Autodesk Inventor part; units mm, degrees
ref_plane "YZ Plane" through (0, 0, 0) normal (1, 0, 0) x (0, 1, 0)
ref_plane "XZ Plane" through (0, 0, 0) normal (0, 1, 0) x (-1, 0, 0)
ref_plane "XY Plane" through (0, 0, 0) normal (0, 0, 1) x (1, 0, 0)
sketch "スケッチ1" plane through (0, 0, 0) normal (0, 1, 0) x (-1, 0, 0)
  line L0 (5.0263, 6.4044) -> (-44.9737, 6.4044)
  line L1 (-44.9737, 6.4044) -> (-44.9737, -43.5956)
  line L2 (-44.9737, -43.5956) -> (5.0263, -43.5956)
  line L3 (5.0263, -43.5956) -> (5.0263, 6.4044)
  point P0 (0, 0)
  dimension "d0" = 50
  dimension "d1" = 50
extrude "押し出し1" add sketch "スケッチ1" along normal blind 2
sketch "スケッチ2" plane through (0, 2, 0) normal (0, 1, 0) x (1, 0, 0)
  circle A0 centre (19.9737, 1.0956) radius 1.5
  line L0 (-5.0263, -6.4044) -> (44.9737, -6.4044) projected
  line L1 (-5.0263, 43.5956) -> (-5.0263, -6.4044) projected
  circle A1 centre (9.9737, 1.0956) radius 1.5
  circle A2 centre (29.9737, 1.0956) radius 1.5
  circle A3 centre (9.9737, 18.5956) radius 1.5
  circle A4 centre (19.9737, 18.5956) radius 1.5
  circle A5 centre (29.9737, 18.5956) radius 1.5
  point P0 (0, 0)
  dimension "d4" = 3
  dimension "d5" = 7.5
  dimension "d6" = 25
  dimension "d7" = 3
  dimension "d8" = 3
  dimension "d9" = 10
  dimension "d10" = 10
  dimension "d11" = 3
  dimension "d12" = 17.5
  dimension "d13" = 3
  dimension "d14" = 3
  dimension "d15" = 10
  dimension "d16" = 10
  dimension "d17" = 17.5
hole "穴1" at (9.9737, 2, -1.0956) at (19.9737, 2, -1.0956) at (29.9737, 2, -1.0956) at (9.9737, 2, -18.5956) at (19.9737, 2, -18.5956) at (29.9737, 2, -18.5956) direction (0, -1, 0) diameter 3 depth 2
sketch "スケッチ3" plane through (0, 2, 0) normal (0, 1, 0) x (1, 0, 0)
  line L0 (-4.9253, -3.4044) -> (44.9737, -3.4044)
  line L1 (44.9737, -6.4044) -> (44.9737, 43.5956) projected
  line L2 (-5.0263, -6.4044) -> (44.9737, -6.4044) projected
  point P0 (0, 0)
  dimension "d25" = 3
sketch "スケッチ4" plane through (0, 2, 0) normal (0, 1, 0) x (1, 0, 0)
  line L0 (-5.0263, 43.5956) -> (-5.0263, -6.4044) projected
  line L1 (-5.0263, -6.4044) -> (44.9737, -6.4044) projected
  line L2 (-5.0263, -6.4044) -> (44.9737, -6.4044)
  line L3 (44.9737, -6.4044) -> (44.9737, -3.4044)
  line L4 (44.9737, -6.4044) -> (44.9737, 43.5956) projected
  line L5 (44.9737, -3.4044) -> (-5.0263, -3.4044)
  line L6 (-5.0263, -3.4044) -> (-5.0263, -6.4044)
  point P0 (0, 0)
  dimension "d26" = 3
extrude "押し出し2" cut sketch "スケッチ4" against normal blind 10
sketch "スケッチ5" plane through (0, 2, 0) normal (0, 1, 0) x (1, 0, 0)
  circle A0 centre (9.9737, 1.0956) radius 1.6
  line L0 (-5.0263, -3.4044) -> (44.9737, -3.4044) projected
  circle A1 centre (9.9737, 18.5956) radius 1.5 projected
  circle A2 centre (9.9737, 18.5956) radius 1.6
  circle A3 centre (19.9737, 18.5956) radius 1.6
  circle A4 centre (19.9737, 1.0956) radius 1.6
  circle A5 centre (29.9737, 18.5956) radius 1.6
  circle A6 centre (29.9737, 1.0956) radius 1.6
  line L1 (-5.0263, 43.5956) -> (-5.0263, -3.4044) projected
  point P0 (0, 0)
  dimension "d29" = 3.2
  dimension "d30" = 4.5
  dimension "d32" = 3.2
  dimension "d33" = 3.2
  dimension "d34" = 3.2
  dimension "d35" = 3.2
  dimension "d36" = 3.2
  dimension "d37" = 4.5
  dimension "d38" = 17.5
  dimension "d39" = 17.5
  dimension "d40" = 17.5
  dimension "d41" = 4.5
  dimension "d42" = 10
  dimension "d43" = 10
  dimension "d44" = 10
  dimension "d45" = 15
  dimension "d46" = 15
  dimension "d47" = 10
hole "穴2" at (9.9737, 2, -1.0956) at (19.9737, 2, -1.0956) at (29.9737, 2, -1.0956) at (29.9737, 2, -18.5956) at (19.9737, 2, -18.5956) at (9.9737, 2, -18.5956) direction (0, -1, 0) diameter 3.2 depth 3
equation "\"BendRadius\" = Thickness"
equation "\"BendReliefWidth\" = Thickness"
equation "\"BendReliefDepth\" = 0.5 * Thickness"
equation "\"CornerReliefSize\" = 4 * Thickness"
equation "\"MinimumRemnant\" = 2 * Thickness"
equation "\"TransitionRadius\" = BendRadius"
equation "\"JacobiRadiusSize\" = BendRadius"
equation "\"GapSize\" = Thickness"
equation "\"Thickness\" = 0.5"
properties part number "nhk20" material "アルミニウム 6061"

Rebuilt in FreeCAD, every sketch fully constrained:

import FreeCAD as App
import Part
import Sketcher


def add_polygon(sketch, points):
    """Adds a closed chain of lines whose ends are joined by coincident constraints."""
    first, n = sketch.GeometryCount, len(points)
    for a, b in zip(points, points[1:] + points[:1]):
        sketch.addGeometry(Part.LineSegment(App.Vector(*a, 0), App.Vector(*b, 0)), False)
    for i in range(n):
        sketch.addConstraint(Sketcher.Constraint("Coincident", first + i, 2, first + (i + 1) % n, 1))

doc = App.newDocument("Part")
body = doc.addObject("PartDesign::Body", "Body")

# Sketch on XZ plane
sketch1 = doc.addObject("Sketcher::SketchObject", "Sketch")
body.addObject(sketch1)
sketch1.AttachmentSupport = (doc.XZ_Plane, [""])
sketch1.MapMode = "FlatFace"
add_polygon(sketch1, [(-5, -44), (-5, 6), (45, 6), (45, -44)])  # lines 0-3
sketch1.addConstraint([
    Sketcher.Constraint("Vertical", 0),
    Sketcher.Constraint("Horizontal", 1),
    Sketcher.Constraint("Vertical", 2),
    Sketcher.Constraint("Horizontal", 3),
    Sketcher.Constraint("Equal", 3, 0),
    Sketcher.Constraint("DistanceX", 1, 1, 1, 2, 50.0),
    Sketcher.Constraint("DistanceX", 0, 2, -1, 1, 5.0263),
    Sketcher.Constraint("DistanceY", -1, 1, 0, 2, 6.4044),
])
pad1 = doc.addObject("PartDesign::Pad", "Pad")
body.addObject(pad1)
pad1.Profile = sketch1
pad1.Length = 2
pad1.Reversed = True

# Sketch on XZ plane
sketch2 = doc.addObject("Sketcher::SketchObject", "Sketch001")
body.addObject(sketch2)
sketch2.AttachmentSupport = (doc.XZ_Plane, [""])
sketch2.MapMode = "FlatFace"
sketch2.AttachmentOffset = App.Placement(App.Vector(0, 0, -2), App.Rotation())
sketch2.addGeometry([
    Part.Circle(App.Vector(10, -1.1, 0), App.Vector(0, 0, 1), 1.5),  # 0
    Part.Circle(App.Vector(20, -1.1, 0), App.Vector(0, 0, 1), 1.5),  # 1
    Part.Circle(App.Vector(30, -1.1, 0), App.Vector(0, 0, 1), 1.5),  # 2
    Part.Circle(App.Vector(10, -18.6, 0), App.Vector(0, 0, 1), 1.5),  # 3
    Part.Circle(App.Vector(20, -18.6, 0), App.Vector(0, 0, 1), 1.5),  # 4
    Part.Circle(App.Vector(30, -18.6, 0), App.Vector(0, 0, 1), 1.5),  # 5
], False)
sketch2.addConstraint([
    Sketcher.Constraint("Equal", 0, 1),
    Sketcher.Constraint("Equal", 1, 2),
    Sketcher.Constraint("Equal", 2, 3),
    Sketcher.Constraint("Equal", 3, 4),
    Sketcher.Constraint("Equal", 4, 5),
    Sketcher.Constraint("Horizontal", 0, 3, 1, 3),
    Sketcher.Constraint("Horizontal", 1, 3, 2, 3),
    Sketcher.Constraint("Horizontal", 3, 3, 4, 3),
    Sketcher.Constraint("Horizontal", 4, 3, 5, 3),
    Sketcher.Constraint("Vertical", 0, 3, 3, 3),
    Sketcher.Constraint("Vertical", 1, 3, 4, 3),
    Sketcher.Constraint("Vertical", 2, 3, 5, 3),
    Sketcher.Constraint("Diameter", 0, 3.0),
    Sketcher.Constraint("DistanceX", 0, 3, 1, 3, 10.0),
    Sketcher.Constraint("DistanceX", 1, 3, 2, 3, 10.0),
    Sketcher.Constraint("DistanceY", 3, 3, 0, 3, 17.5),
    Sketcher.Constraint("DistanceX", -1, 1, 0, 3, 9.9737),
    Sketcher.Constraint("DistanceY", 0, 3, -1, 1, 1.0956),
])
doc.recompute()
hole = doc.addObject("PartDesign::Hole", "Hole")
body.addObject(hole)
hole.Profile = sketch2
hole.ThreadType = "None"
hole.Diameter = 3
hole.DepthType = "Dimension"
hole.Depth = 2
hole.DrillPoint = "Flat"
hole.Reversed = True

# Sketch on XZ plane
sketch3 = doc.addObject("Sketcher::SketchObject", "Sketch002")
body.addObject(sketch3)
sketch3.AttachmentSupport = (doc.XZ_Plane, [""])
sketch3.MapMode = "FlatFace"
sketch3.AttachmentOffset = App.Placement(App.Vector(0, 0, -2), App.Rotation())
add_polygon(sketch3, [(45, 3.4), (-5, 3.4), (-5, 6.4), (45, 6.4)])  # lines 0-3
sketch3.addConstraint([
    Sketcher.Constraint("Horizontal", 0),
    Sketcher.Constraint("Vertical", 1),
    Sketcher.Constraint("Horizontal", 2),
    Sketcher.Constraint("Vertical", 3),
    Sketcher.Constraint("DistanceY", 1, 1, 1, 2, 3.0),
    Sketcher.Constraint("DistanceX", 0, 2, 0, 1, 50.0),
    Sketcher.Constraint("DistanceX", 0, 2, -1, 1, 5.0263),
    Sketcher.Constraint("DistanceY", -1, 1, 0, 2, 3.4044),
])
pocket1 = doc.addObject("PartDesign::Pocket", "Pocket")
body.addObject(pocket1)
pocket1.Profile = sketch3
pocket1.Length = 10
pocket1.Reversed = True

# Sketch on XZ plane
sketch4 = doc.addObject("Sketcher::SketchObject", "Sketch003")
body.addObject(sketch4)
sketch4.AttachmentSupport = (doc.XZ_Plane, [""])
sketch4.MapMode = "FlatFace"
sketch4.AttachmentOffset = App.Placement(App.Vector(0, 0, -2), App.Rotation())
sketch4.addGeometry([
    Part.Circle(App.Vector(10, -1.1, 0), App.Vector(0, 0, 1), 1.6),  # 0
    Part.Circle(App.Vector(20, -1.1, 0), App.Vector(0, 0, 1), 1.6),  # 1
    Part.Circle(App.Vector(30, -1.1, 0), App.Vector(0, 0, 1), 1.6),  # 2
    Part.Circle(App.Vector(30, -18.6, 0), App.Vector(0, 0, 1), 1.6),  # 3
    Part.Circle(App.Vector(20, -18.6, 0), App.Vector(0, 0, 1), 1.6),  # 4
    Part.Circle(App.Vector(10, -18.6, 0), App.Vector(0, 0, 1), 1.6),  # 5
], False)
sketch4.addConstraint([
    Sketcher.Constraint("Equal", 0, 1),
    Sketcher.Constraint("Equal", 1, 2),
    Sketcher.Constraint("Equal", 2, 3),
    Sketcher.Constraint("Equal", 3, 4),
    Sketcher.Constraint("Equal", 4, 5),
    Sketcher.Constraint("Horizontal", 0, 3, 1, 3),
    Sketcher.Constraint("Horizontal", 1, 3, 2, 3),
    Sketcher.Constraint("Horizontal", 3, 3, 4, 3),
    Sketcher.Constraint("Horizontal", 4, 3, 5, 3),
    Sketcher.Constraint("Vertical", 2, 3, 3, 3),
    Sketcher.Constraint("Vertical", 1, 3, 4, 3),
    Sketcher.Constraint("Vertical", 0, 3, 5, 3),
    Sketcher.Constraint("Diameter", 0, 3.2),
    Sketcher.Constraint("DistanceX", 0, 3, 1, 3, 10.0),
    Sketcher.Constraint("DistanceX", 1, 3, 2, 3, 10.0),
    Sketcher.Constraint("DistanceY", 3, 3, 2, 3, 17.5),
    Sketcher.Constraint("DistanceX", -1, 1, 0, 3, 9.9737),
    Sketcher.Constraint("DistanceY", 0, 3, -1, 1, 1.0956),
])
doc.recompute()
hole2 = doc.addObject("PartDesign::Hole", "Hole001")
body.addObject(hole2)
hole2.Profile = sketch4
hole2.ThreadType = "None"
hole2.Diameter = 3.2
hole2.DepthType = "Dimension"
hole2.Depth = 3
hole2.DrillPoint = "Flat"
hole2.Reversed = True

doc.recompute()
